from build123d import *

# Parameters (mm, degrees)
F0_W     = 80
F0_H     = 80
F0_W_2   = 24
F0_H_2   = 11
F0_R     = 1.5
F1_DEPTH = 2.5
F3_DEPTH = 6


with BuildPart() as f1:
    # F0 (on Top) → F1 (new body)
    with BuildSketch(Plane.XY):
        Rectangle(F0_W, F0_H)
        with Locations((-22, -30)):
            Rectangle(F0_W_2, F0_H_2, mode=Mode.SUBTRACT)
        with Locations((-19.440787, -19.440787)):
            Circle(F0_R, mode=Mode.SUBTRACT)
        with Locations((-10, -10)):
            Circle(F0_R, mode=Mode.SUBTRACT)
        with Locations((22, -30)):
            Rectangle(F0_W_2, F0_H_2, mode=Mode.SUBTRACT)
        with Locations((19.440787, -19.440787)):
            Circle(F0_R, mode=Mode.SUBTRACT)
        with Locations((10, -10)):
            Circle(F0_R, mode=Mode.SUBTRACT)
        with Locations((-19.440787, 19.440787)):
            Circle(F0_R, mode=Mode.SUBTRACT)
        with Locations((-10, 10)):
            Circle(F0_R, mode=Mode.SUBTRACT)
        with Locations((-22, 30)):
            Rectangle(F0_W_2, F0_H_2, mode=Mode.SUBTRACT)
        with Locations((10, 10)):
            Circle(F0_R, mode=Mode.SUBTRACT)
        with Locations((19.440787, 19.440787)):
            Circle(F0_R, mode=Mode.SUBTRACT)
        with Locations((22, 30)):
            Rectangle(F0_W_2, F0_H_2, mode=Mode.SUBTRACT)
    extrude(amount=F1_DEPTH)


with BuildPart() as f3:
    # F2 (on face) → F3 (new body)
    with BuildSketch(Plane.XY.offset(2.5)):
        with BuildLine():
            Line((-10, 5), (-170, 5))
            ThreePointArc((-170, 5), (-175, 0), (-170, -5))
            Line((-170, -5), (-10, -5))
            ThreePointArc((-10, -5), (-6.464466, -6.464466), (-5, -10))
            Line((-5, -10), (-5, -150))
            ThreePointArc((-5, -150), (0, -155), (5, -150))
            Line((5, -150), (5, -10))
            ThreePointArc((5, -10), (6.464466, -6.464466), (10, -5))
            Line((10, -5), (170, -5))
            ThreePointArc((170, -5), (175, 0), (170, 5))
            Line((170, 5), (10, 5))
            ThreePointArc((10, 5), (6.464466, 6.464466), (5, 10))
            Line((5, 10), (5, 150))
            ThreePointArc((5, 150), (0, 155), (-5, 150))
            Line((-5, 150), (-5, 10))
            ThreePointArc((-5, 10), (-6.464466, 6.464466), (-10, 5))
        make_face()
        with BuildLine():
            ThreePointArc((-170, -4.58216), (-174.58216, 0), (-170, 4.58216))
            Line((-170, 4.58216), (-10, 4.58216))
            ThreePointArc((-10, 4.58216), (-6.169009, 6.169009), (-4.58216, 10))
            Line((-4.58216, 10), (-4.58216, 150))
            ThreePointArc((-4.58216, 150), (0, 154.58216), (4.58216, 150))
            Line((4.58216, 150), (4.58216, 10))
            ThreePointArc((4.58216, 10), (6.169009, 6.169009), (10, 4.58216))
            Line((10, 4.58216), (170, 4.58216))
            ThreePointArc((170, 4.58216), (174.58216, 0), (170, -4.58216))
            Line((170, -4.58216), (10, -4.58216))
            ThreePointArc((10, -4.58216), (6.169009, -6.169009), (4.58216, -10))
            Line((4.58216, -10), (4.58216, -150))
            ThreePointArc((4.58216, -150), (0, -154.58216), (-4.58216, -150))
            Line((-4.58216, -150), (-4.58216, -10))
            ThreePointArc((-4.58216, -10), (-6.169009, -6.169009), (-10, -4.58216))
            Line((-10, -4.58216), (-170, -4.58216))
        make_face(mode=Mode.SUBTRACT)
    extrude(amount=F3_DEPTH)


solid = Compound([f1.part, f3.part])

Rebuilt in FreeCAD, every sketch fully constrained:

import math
import FreeCAD as App
import Part
import Sketcher
from FreeCAD import Vector


def add_polygon(sketch, points):
    """Adds a closed chain of lines whose ends are joined by coincident constraints."""
    first, n = sketch.GeometryCount, len(points)
    for a, b in zip(points, points[1:] + points[:1]):
        sketch.addGeometry(Part.LineSegment(App.Vector(*a, 0), App.Vector(*b, 0)), False)
    for i in range(n):
        sketch.addConstraint(Sketcher.Constraint("Coincident", first + i, 2, first + (i + 1) % n, 1))

doc = App.newDocument("Part")
params = doc.addObject("Spreadsheet::Sheet", "Params")
for row, (alias, value) in enumerate([
    ("sketch1_diameter", "3 mm"),
    ("sketch1_width", "80 mm"),
    ("sketch1_width2", "24 mm"),
    ("sketch1_height", "11 mm"),
    ("pad1_length", "2.5 mm"),
    ("sketch2_radius", "5 mm"),
    ("sketch2_width", "160 mm"),
    ("sketch2_height", "140 mm"),
    ("pad2_length", "6 mm"),
], start=1):
    params.set(f"A{row}", alias)
    params.set(f"B{row}", "=" + value)
    params.setAlias(f"B{row}", alias)

body = doc.addObject("PartDesign::Body", "Body")

sketch1 = doc.addObject("Sketcher::SketchObject", "Sketch")
body.addObject(sketch1)
sketch1.AttachmentSupport = (doc.XY_Plane, [""])
sketch1.MapMode = "FlatFace"
add_polygon(sketch1, [(-40, 40), (-40, -40), (40, -40), (40, 40)])
add_polygon(sketch1, [(-10, -35.5), (-34, -35.5), (-34, -24.5), (-10, -24.5)])
sketch1.addGeometry(Part.Circle(Vector(-19.4, -19.4, 0), Vector(0, 0, 1), 1.5), False)
sketch1.addGeometry(Part.Circle(Vector(-10, -10, 0), Vector(0, 0, 1), 1.5), False)
add_polygon(sketch1, [(34, -35.5), (10, -35.5), (10, -24.5), (34, -24.5)])
sketch1.addGeometry(Part.Circle(Vector(19.4, -19.4, 0), Vector(0, 0, 1), 1.5), False)
sketch1.addGeometry(Part.Circle(Vector(10, -10, 0), Vector(0, 0, 1), 1.5), False)
sketch1.addGeometry(Part.Circle(Vector(-10, 10, 0), Vector(0, 0, 1), 1.5), False)
sketch1.addGeometry(Part.Circle(Vector(-19.4, 19.4, 0), Vector(0, 0, 1), 1.5), False)
add_polygon(sketch1, [(-10, 24.5), (-34, 24.5), (-34, 35.5), (-10, 35.5)])
sketch1.addGeometry(Part.Circle(Vector(10, 10, 0), Vector(0, 0, 1), 1.5), False)
sketch1.addGeometry(Part.Circle(Vector(19.4, 19.4, 0), Vector(0, 0, 1), 1.5), False)
add_polygon(sketch1, [(34, 24.5), (10, 24.5), (10, 35.5), (34, 35.5)])
sketch1.addConstraint(Sketcher.Constraint("Vertical", 0))
sketch1.addConstraint(Sketcher.Constraint("Horizontal", 1))
sketch1.addConstraint(Sketcher.Constraint("Vertical", 2))
sketch1.addConstraint(Sketcher.Constraint("Horizontal", 3))
sketch1.addConstraint(Sketcher.Constraint("Horizontal", 4))
sketch1.addConstraint(Sketcher.Constraint("Vertical", 5))
sketch1.addConstraint(Sketcher.Constraint("Horizontal", 6))
sketch1.addConstraint(Sketcher.Constraint("Vertical", 7))
sketch1.addConstraint(Sketcher.Constraint("Horizontal", 10))
sketch1.addConstraint(Sketcher.Constraint("Vertical", 11))
sketch1.addConstraint(Sketcher.Constraint("Horizontal", 12))
sketch1.addConstraint(Sketcher.Constraint("Vertical", 13))
sketch1.addConstraint(Sketcher.Constraint("Horizontal", 18))
sketch1.addConstraint(Sketcher.Constraint("Vertical", 19))
sketch1.addConstraint(Sketcher.Constraint("Horizontal", 20))
sketch1.addConstraint(Sketcher.Constraint("Vertical", 21))
sketch1.addConstraint(Sketcher.Constraint("Horizontal", 24))
sketch1.addConstraint(Sketcher.Constraint("Vertical", 25))
sketch1.addConstraint(Sketcher.Constraint("Horizontal", 26))
sketch1.addConstraint(Sketcher.Constraint("Vertical", 27))
sketch1.addConstraint(Sketcher.Constraint("Equal", 8, 9))
sketch1.addConstraint(Sketcher.Constraint("Equal", 9, 14))
sketch1.addConstraint(Sketcher.Constraint("Equal", 14, 15))
sketch1.addConstraint(Sketcher.Constraint("Equal", 15, 16))
sketch1.addConstraint(Sketcher.Constraint("Equal", 16, 17))
sketch1.addConstraint(Sketcher.Constraint("Equal", 17, 22))
sketch1.addConstraint(Sketcher.Constraint("Equal", 22, 23))
sketch1.addConstraint(Sketcher.Constraint("Symmetric", 15, 3, 16, 3, -1, 1))
sketch1.addConstraint(Sketcher.Constraint("Symmetric", 14, 3, 17, 3, -1, 1))
sketch1.addConstraint(Sketcher.Constraint("Symmetric", 9, 3, 22, 3, -1, 1))
sketch1.addConstraint(Sketcher.Constraint("Symmetric", 8, 3, 23, 3, -1, 1))
sketch1.addConstraint(Sketcher.Constraint("Symmetric", 0, 2, 2, 2, -1, 1))
sketch1.addConstraint(Sketcher.Constraint("Symmetric", 12, 2, 18, 2, -1, 1))
sketch1.addConstraint(Sketcher.Constraint("Symmetric", 10, 2, 20, 2, -1, 1))
sketch1.addConstraint(Sketcher.Constraint("Symmetric", 6, 2, 24, 2, -1, 1))
sketch1.addConstraint(Sketcher.Constraint("Symmetric", 4, 2, 26, 2, -1, 1))
sketch1.addConstraint(Sketcher.Constraint("Symmetric", 8, 3, 14, 3, -2))
sketch1.addConstraint(Sketcher.Constraint("Symmetric", 9, 3, 15, 3, -2))
sketch1.addConstraint(Sketcher.Constraint("Symmetric", 7, 2, 10, 2, -2))
sketch1.addConstraint(Sketcher.Constraint("Symmetric", 5, 2, 12, 2, -2))
sketch1.addConstraint(Sketcher.Constraint("Vertical", 16, 3, 6, 2))
sketch1.addConstraint(Sketcher.Constraint("Equal", 3, 0))
sketch1.addConstraint(Sketcher.Constraint("Diameter", 8, 3.0))
sketch1.addConstraint(Sketcher.Constraint("DistanceX", 1, 1, 1, 2, 80.0))
sketch1.addConstraint(Sketcher.Constraint("DistanceX", 4, 2, 4, 1, 24.0))
sketch1.addConstraint(Sketcher.Constraint("DistanceY", 5, 1, 5, 2, 11.0))
sketch1.addConstraint(Sketcher.Constraint("DistanceX", 9, 3, -1, 1, 10.0))
sketch1.addConstraint(Sketcher.Constraint("DistanceY", 9, 3, -1, 1, 10.0))
sketch1.addConstraint(Sketcher.Constraint("DistanceY", 4, 2, -1, 1, 35.5))
sketch1.addConstraint(Sketcher.Constraint("DistanceX", 8, 3, -1, 1, 19.440787))
sketch1.addConstraint(Sketcher.Constraint("DistanceY", 8, 3, -1, 1, 19.440787))
sketch1.setExpression("Constraints[62]", "Params.sketch1_diameter")
sketch1.setExpression("Constraints[63]", "Params.sketch1_width")
sketch1.setExpression("Constraints[64]", "Params.sketch1_width2")
sketch1.setExpression("Constraints[65]", "Params.sketch1_height")
pad1 = doc.addObject("PartDesign::Pad", "Pad")
body.addObject(pad1)
pad1.Profile = sketch1
pad1.setExpression("Length", "Params.pad1_length")
body2 = doc.addObject("PartDesign::Body", "Body001")

sketch2 = doc.addObject("Sketcher::SketchObject", "Sketch001")
body2.addObject(sketch2)
sketch2.AttachmentSupport = (doc.getObject("XY_Plane001"), [""])
sketch2.MapMode = "FlatFace"
sketch2.AttachmentOffset = App.Placement(Vector(0, 0, 2.5), App.Rotation())
sketch2.addGeometry(Part.LineSegment(Vector(-10, 5, 0), Vector(-170, 5, 0)), False)
sketch2.addGeometry(Part.ArcOfCircle(Part.Circle(Vector(-170, 0, 0), Vector(0, 0, 1), 5), math.radians(90), math.radians(270)), False)
sketch2.addGeometry(Part.LineSegment(Vector(-170, -5, 0), Vector(-10, -5, 0)), False)
sketch2.addGeometry(Part.ArcOfCircle(Part.Circle(Vector(-10, -10, 0), Vector(0, 0, 1), 5), math.radians(0), math.radians(90)), False)
sketch2.addGeometry(Part.LineSegment(Vector(-5, -10, 0), Vector(-5, -150, 0)), False)
sketch2.addGeometry(Part.ArcOfCircle(Part.Circle(Vector(0, -150, 0), Vector(0, 0, 1), 5), math.radians(180), math.radians(360)), False)
sketch2.addGeometry(Part.LineSegment(Vector(5, -150, 0), Vector(5, -10, 0)), False)
sketch2.addGeometry(Part.ArcOfCircle(Part.Circle(Vector(10, -10, 0), Vector(0, 0, 1), 5), math.radians(90), math.radians(180)), False)
sketch2.addGeometry(Part.LineSegment(Vector(10, -5, 0), Vector(170, -5, 0)), False)
sketch2.addGeometry(Part.ArcOfCircle(Part.Circle(Vector(170, 0, 0), Vector(0, 0, 1), 5), math.radians(-90), math.radians(90)), False)
sketch2.addGeometry(Part.LineSegment(Vector(170, 5, 0), Vector(10, 5, 0)), False)
sketch2.addGeometry(Part.ArcOfCircle(Part.Circle(Vector(10, 10, 0), Vector(0, 0, 1), 5), math.radians(180), math.radians(270)), False)
sketch2.addGeometry(Part.LineSegment(Vector(5, 10, 0), Vector(5, 150, 0)), False)
sketch2.addGeometry(Part.ArcOfCircle(Part.Circle(Vector(0, 150, 0), Vector(0, 0, 1), 5), math.radians(0), math.radians(180)), False)
sketch2.addGeometry(Part.LineSegment(Vector(-5, 150, 0), Vector(-5, 10, 0)), False)
sketch2.addGeometry(Part.ArcOfCircle(Part.Circle(Vector(-10, 10, 0), Vector(0, 0, 1), 5), math.radians(-90), math.radians(0)), False)
sketch2.addGeometry(Part.LineSegment(Vector(-10, -4.6, 0), Vector(-170, -4.6, 0)), False)
sketch2.addGeometry(Part.ArcOfCircle(Part.Circle(Vector(-170, 0, 0), Vector(0, 0, 1), 4.6), math.radians(90), math.radians(270)), False)
sketch2.addGeometry(Part.LineSegment(Vector(-170, 4.6, 0), Vector(-10, 4.6, 0)), False)
sketch2.addGeometry(Part.ArcOfCircle(Part.Circle(Vector(-10, 10, 0), Vector(0, 0, 1), 5.4), math.radians(-90), math.radians(0)), False)
sketch2.addGeometry(Part.LineSegment(Vector(-4.6, 10, 0), Vector(-4.6, 150, 0)), False)
sketch2.addGeometry(Part.ArcOfCircle(Part.Circle(Vector(0, 150, 0), Vector(0, 0, 1), 4.6), math.radians(0), math.radians(180)), False)
sketch2.addGeometry(Part.LineSegment(Vector(4.6, 150, 0), Vector(4.6, 10, 0)), False)
sketch2.addGeometry(Part.ArcOfCircle(Part.Circle(Vector(10, 10, 0), Vector(0, 0, 1), 5.4), math.radians(-180), math.radians(-90)), False)
sketch2.addGeometry(Part.LineSegment(Vector(10, 4.6, 0), Vector(170, 4.6, 0)), False)
sketch2.addGeometry(Part.ArcOfCircle(Part.Circle(Vector(170, 0, 0), Vector(0, 0, 1), 4.6), math.radians(-90), math.radians(90)), False)
sketch2.addGeometry(Part.LineSegment(Vector(170, -4.6, 0), Vector(10, -4.6, 0)), False)
sketch2.addGeometry(Part.ArcOfCircle(Part.Circle(Vector(10, -10, 0), Vector(0, 0, 1), 5.4), math.radians(90), math.radians(180)), False)
sketch2.addGeometry(Part.LineSegment(Vector(4.6, -10, 0), Vector(4.6, -150, 0)), False)
sketch2.addGeometry(Part.ArcOfCircle(Part.Circle(Vector(0, -150, 0), Vector(0, 0, 1), 4.6), math.radians(180), math.radians(360)), False)
sketch2.addGeometry(Part.LineSegment(Vector(-4.6, -150, 0), Vector(-4.6, -10, 0)), False)
sketch2.addGeometry(Part.ArcOfCircle(Part.Circle(Vector(-10, -10, 0), Vector(0, 0, 1), 5.4), math.radians(0), math.radians(90)), False)
sketch2.addConstraint(Sketcher.Constraint("Tangent", 0, 2, 1, 1))
sketch2.addConstraint(Sketcher.Constraint("Tangent", 1, 2, 2, 1))
sketch2.addConstraint(Sketcher.Constraint("Tangent", 2, 2, 3, 2))
sketch2.addConstraint(Sketcher.Constraint("Tangent", 3, 1, 4, 1))
sketch2.addConstraint(Sketcher.Constraint("Tangent", 4, 2, 5, 1))
sketch2.addConstraint(Sketcher.Constraint("Tangent", 5, 2, 6, 1))
sketch2.addConstraint(Sketcher.Constraint("Tangent", 6, 2, 7, 2))
sketch2.addConstraint(Sketcher.Constraint("Tangent", 7, 1, 8, 1))
sketch2.addConstraint(Sketcher.Constraint("Tangent", 8, 2, 9, 1))
sketch2.addConstraint(Sketcher.Constraint("Tangent", 9, 2, 10, 1))
sketch2.addConstraint(Sketcher.Constraint("Tangent", 10, 2, 11, 2))
sketch2.addConstraint(Sketcher.Constraint("Tangent", 11, 1, 12, 1))
sketch2.addConstraint(Sketcher.Constraint("Tangent", 12, 2, 13, 1))
sketch2.addConstraint(Sketcher.Constraint("Tangent", 13, 2, 14, 1))
sketch2.addConstraint(Sketcher.Constraint("Tangent", 14, 2, 15, 2))
sketch2.addConstraint(Sketcher.Constraint("Tangent", 15, 1, 0, 1))
sketch2.addConstraint(Sketcher.Constraint("Tangent", 16, 2, 17, 2))
sketch2.addConstraint(Sketcher.Constraint("Tangent", 17, 1, 18, 1))
sketch2.addConstraint(Sketcher.Constraint("Tangent", 18, 2, 19, 1))
sketch2.addConstraint(Sketcher.Constraint("Tangent", 19, 2, 20, 1))
sketch2.addConstraint(Sketcher.Constraint("Tangent", 20, 2, 21, 2))
sketch2.addConstraint(Sketcher.Constraint("Tangent", 21, 1, 22, 1))
sketch2.addConstraint(Sketcher.Constraint("Tangent", 22, 2, 23, 1))
sketch2.addConstraint(Sketcher.Constraint("Tangent", 23, 2, 24, 1))
sketch2.addConstraint(Sketcher.Constraint("Tangent", 24, 2, 25, 2))
sketch2.addConstraint(Sketcher.Constraint("Tangent", 25, 1, 26, 1))
sketch2.addConstraint(Sketcher.Constraint("Tangent", 26, 2, 27, 1))
sketch2.addConstraint(Sketcher.Constraint("Tangent", 27, 2, 28, 1))
sketch2.addConstraint(Sketcher.Constraint("Tangent", 28, 2, 29, 2))
sketch2.addConstraint(Sketcher.Constraint("Tangent", 29, 1, 30, 1))
sketch2.addConstraint(Sketcher.Constraint("Tangent", 30, 2, 31, 1))
sketch2.addConstraint(Sketcher.Constraint("Tangent", 31, 2, 16, 1))
sketch2.addConstraint(Sketcher.Constraint("Horizontal", 0))
sketch2.addConstraint(Sketcher.Constraint("Horizontal", 2))
sketch2.addConstraint(Sketcher.Constraint("Vertical", 4))
sketch2.addConstraint(Sketcher.Constraint("Vertical", 6))
sketch2.addConstraint(Sketcher.Constraint("Horizontal", 8))
sketch2.addConstraint(Sketcher.Constraint("Horizontal", 10))
sketch2.addConstraint(Sketcher.Constraint("Vertical", 12))
sketch2.addConstraint(Sketcher.Constraint("Vertical", 14))
sketch2.addConstraint(Sketcher.Constraint("Horizontal", 16))
sketch2.addConstraint(Sketcher.Constraint("Horizontal", 18))
sketch2.addConstraint(Sketcher.Constraint("Vertical", 20))
sketch2.addConstraint(Sketcher.Constraint("Vertical", 22))
sketch2.addConstraint(Sketcher.Constraint("Horizontal", 24))
sketch2.addConstraint(Sketcher.Constraint("Horizontal", 26))
sketch2.addConstraint(Sketcher.Constraint("Vertical", 28))
sketch2.addConstraint(Sketcher.Constraint("Vertical", 30))
sketch2.addConstraint(Sketcher.Constraint("Coincident", 17, 3, 1, 3))
sketch2.addConstraint(Sketcher.Constraint("Coincident", 19, 3, 15, 3))
sketch2.addConstraint(Sketcher.Constraint("Coincident", 21, 3, 13, 3))
sketch2.addConstraint(Sketcher.Constraint("Coincident", 23, 3, 11, 3))
sketch2.addConstraint(Sketcher.Constraint("Coincident", 25, 3, 9, 3))
sketch2.addConstraint(Sketcher.Constraint("Coincident", 27, 3, 7, 3))
sketch2.addConstraint(Sketcher.Constraint("Coincident", 29, 3, 5, 3))
sketch2.addConstraint(Sketcher.Constraint("Equal", 1, 3))
sketch2.addConstraint(Sketcher.Constraint("Equal", 3, 5))
sketch2.addConstraint(Sketcher.Constraint("Equal", 5, 7))
sketch2.addConstraint(Sketcher.Constraint("Equal", 7, 9))
sketch2.addConstraint(Sketcher.Constraint("Equal", 9, 11))
sketch2.addConstraint(Sketcher.Constraint("Equal", 11, 13))
sketch2.addConstraint(Sketcher.Constraint("Equal", 13, 15))
sketch2.addConstraint(Sketcher.Constraint("Equal", 27, 31))
sketch2.addConstraint(Sketcher.Constraint("Symmetric", 1, 3, 9, 3, -1, 1))
sketch2.addConstraint(Sketcher.Constraint("Symmetric", 5, 3, 13, 3, -1, 1))
sketch2.addConstraint(Sketcher.Constraint("Symmetric", 3, 3, 7, 3, -2))
sketch2.addConstraint(Sketcher.Constraint("Radius", 1, 5.0))
sketch2.addConstraint(Sketcher.Constraint("DistanceX", 0, 2, 0, 1, 160.0))
sketch2.addConstraint(Sketcher.Constraint("DistanceY", 4, 2, 4, 1, 140.0))
sketch2.addConstraint(Sketcher.Constraint("Radius", 17, 4.58216))
sketch2.setExpression("Constraints[66]", "Params.sketch2_radius")
sketch2.setExpression("Constraints[67]", "Params.sketch2_width")
sketch2.setExpression("Constraints[68]", "Params.sketch2_height")
pad2 = doc.addObject("PartDesign::Pad", "Pad001")
body2.addObject(pad2)
pad2.Profile = sketch2
pad2.setExpression("Length", "Params.pad2_length")

doc.recompute()
